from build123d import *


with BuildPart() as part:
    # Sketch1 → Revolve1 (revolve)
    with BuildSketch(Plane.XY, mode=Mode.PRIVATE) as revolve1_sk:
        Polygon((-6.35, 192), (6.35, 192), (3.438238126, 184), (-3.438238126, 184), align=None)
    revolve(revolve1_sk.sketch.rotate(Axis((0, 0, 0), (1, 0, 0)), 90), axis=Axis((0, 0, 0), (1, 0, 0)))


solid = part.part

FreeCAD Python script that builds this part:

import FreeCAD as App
import Part
import Sketcher

V = App.Vector
Q = App.Units.Quantity


def add_polygon(sketch, points):
    """Adds a closed chain of lines whose ends are joined by coincident constraints."""
    first, n = sketch.GeometryCount, len(points)
    for a, b in zip(points, points[1:] + points[:1]):
        sketch.addGeometry(Part.LineSegment(App.Vector(*a, 0), App.Vector(*b, 0)), False)
    for i in range(n):
        sketch.addConstraint(Sketcher.Constraint("Coincident", first + i, 2, first + (i + 1) % n, 1))

doc = App.newDocument("Part")
body = doc.addObject("PartDesign::Body", "Body")

# Sketch on XY plane
sketch1 = doc.addObject("Sketcher::SketchObject", "Sketch")
body.addObject(sketch1)
sketch1.AttachmentSupport = (doc.XY_Plane, [""])
sketch1.MapMode = "FlatFace"
add_polygon(sketch1, [(6.35, 192), (-6.35, 192), (-3.438238, 184), (3.438238, 184)])  # lines 0-3
sketch1.addConstraint([
    Sketcher.Constraint("Horizontal", 0),
    Sketcher.Constraint("Horizontal", 2),
    Sketcher.Constraint("Equal", 1, 3),
    Sketcher.Constraint("DistanceX", 0, 2, 0, 1, Q("0.5 in")),
    Sketcher.Constraint("Angle", 1, Q("-70 deg")),
    Sketcher.Constraint("DistanceX", 0, 2, -1, 1, Q("0.25 in")),
    Sketcher.Constraint("DistanceY", -1, 1, 0, 2, Q("192 mm")),
    Sketcher.Constraint("DistanceY", -1, 1, 1, 2, Q("184 mm")),
])
revolution = doc.addObject("PartDesign::Revolution", "Revolution")
body.addObject(revolution)
revolution.Profile = sketch1
revolution.ReferenceAxis = (sketch1, ["H_Axis"])
revolution.Angle = 360

doc.recompute()
